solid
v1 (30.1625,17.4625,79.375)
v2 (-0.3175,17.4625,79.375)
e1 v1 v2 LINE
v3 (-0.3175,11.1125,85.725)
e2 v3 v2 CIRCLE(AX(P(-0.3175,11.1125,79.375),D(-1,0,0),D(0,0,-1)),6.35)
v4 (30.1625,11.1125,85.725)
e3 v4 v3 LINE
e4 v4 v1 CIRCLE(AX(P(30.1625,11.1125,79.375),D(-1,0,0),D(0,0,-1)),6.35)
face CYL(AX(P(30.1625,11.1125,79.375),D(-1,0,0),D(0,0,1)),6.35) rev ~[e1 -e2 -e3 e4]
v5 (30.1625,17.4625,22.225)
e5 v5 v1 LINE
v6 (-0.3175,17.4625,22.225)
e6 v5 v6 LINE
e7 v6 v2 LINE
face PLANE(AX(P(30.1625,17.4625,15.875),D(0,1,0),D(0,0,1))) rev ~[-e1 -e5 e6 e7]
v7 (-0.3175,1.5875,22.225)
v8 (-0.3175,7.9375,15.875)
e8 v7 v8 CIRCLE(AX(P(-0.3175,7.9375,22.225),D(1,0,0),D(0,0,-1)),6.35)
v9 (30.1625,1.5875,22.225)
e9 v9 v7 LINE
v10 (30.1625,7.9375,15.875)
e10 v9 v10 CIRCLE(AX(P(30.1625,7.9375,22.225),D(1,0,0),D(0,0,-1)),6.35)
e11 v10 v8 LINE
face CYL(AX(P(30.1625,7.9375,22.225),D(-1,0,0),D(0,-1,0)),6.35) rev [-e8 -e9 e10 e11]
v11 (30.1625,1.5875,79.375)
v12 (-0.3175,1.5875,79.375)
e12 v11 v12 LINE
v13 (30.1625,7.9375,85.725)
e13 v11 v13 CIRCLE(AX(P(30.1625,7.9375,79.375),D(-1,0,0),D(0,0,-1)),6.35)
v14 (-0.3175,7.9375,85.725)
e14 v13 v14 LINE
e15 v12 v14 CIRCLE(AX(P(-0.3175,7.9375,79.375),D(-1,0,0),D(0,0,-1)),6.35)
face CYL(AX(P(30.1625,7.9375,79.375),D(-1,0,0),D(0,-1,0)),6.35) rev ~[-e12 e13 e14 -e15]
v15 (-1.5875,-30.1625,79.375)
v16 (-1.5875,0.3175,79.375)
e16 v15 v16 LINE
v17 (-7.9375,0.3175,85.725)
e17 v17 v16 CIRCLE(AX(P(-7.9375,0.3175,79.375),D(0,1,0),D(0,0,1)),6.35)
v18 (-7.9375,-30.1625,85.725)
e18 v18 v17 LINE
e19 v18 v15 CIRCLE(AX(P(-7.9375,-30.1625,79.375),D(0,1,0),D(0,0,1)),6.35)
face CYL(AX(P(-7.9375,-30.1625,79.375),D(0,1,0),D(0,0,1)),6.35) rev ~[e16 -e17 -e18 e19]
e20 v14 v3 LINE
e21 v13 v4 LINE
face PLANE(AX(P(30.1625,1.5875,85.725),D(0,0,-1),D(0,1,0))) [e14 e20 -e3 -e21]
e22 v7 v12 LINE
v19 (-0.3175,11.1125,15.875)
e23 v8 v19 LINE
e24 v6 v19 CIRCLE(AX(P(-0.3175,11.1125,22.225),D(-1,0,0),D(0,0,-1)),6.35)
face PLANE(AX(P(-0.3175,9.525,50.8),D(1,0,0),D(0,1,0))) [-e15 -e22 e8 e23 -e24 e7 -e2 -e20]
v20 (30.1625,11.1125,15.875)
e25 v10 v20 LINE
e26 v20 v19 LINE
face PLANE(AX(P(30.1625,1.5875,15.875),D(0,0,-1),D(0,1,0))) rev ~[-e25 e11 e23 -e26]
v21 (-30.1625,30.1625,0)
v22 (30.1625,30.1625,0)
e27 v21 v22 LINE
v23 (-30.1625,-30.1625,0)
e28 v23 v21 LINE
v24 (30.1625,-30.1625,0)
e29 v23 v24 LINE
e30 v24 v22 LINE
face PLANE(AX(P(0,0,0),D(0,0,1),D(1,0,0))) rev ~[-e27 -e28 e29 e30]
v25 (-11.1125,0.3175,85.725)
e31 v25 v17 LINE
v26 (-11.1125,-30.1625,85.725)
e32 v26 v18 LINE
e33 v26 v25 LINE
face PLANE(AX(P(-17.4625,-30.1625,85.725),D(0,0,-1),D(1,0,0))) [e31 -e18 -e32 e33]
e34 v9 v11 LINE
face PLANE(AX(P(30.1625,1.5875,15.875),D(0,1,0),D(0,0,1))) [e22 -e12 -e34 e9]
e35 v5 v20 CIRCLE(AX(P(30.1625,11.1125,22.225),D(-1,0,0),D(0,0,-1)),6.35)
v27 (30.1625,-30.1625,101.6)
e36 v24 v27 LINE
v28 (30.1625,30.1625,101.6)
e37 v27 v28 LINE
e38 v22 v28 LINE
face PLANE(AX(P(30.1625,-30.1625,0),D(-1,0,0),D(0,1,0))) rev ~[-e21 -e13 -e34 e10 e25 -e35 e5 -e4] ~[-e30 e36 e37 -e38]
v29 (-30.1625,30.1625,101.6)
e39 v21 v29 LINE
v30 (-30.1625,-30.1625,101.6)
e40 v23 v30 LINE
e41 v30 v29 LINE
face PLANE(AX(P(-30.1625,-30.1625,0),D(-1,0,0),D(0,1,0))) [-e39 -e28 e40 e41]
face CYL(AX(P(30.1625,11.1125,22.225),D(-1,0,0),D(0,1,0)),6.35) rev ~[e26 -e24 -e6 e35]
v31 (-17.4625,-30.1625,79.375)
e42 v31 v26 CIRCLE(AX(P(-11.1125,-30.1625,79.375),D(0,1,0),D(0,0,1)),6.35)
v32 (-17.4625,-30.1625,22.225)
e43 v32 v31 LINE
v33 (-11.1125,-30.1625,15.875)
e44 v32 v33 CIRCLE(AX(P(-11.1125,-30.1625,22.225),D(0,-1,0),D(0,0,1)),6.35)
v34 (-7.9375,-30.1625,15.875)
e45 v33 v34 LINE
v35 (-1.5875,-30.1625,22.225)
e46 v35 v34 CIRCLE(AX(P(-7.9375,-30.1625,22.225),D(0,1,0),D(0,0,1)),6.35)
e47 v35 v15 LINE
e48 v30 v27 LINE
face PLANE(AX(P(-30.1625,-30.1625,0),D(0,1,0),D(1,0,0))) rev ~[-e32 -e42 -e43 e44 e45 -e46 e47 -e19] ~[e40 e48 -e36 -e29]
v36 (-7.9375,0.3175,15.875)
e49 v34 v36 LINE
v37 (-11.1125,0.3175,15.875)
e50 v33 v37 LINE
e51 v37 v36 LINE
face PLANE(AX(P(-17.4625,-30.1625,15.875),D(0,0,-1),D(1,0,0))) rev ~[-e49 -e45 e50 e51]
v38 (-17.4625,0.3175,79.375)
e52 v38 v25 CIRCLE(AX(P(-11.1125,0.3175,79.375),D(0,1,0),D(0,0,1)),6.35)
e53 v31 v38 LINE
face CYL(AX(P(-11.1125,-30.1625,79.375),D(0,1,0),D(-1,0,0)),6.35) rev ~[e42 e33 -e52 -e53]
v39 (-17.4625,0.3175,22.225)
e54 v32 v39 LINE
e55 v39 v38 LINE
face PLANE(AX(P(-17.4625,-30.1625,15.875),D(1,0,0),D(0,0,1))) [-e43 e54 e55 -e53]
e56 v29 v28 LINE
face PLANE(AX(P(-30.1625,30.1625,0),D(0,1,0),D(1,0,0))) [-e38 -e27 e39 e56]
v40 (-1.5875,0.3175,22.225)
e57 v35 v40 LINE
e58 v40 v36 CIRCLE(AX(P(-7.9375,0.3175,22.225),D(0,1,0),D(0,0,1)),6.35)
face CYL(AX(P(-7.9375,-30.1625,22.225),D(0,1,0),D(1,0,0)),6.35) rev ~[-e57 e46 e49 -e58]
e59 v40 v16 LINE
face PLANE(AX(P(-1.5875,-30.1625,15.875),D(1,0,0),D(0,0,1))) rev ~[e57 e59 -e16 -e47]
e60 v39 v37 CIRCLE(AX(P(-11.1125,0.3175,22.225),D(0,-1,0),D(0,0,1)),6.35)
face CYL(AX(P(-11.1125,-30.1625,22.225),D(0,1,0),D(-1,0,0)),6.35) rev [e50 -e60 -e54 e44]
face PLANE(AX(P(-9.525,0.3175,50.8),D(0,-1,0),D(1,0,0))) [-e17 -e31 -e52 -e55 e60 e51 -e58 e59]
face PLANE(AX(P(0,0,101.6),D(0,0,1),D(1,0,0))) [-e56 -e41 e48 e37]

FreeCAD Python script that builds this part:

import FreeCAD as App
import Part
import Sketcher
Q = App.Units.Quantity


def edges_at(feature, points):
    """Names of the edges that pass closest to the given points."""
    edges = feature.Shape.Edges
    near = lambda p: min(range(len(edges)), key=lambda i: edges[i].distToShape(Part.Vertex(*p))[0])
    return sorted({f"Edge{near(p) + 1}" for p in points})


def add_polygon(sketch, points):
    """Adds a closed chain of lines whose ends are joined by coincident constraints."""
    first, n = sketch.GeometryCount, len(points)
    for a, b in zip(points, points[1:] + points[:1]):
        sketch.addGeometry(Part.LineSegment(App.Vector(*a, 0), App.Vector(*b, 0)), False)
    for i in range(n):
        sketch.addConstraint(Sketcher.Constraint("Coincident", first + i, 2, first + (i + 1) % n, 1))

doc = App.newDocument("Part")
params = doc.addObject("Spreadsheet::Sheet", "Params")
for row, (alias, value) in enumerate([
    ("sketch1_width", "2.375 in"),
    ("pad1_length", "4 in"),
    ("sketch2_height", "2.75 in"),
    ("sketch2_width", "0.625 in"),
    ("pocket1_length", "1.2 in"),
    ("sketch3_height", "2.75 in"),
    ("sketch3_width", "0.625 in"),
    ("pocket2_length", "1.2 in"),
    ("fillet_radius", "0.25 in"),
], start=1):
    params.set(f"A{row}", alias)
    params.set(f"B{row}", "=" + value)
    params.setAlias(f"B{row}", alias)

body = doc.addObject("PartDesign::Body", "Body")

sketch1 = body.newObject("Sketcher::SketchObject", "Sketch")
sketch1.AttachmentSupport = (doc.getObject("XY_Plane"), [""])
sketch1.MapMode = "FlatFace"
add_polygon(sketch1, [(-30, 30), (-30, -30), (30, -30), (30, 30)])
sketch1.addConstraint([
    Sketcher.Constraint("Vertical", 0),
    Sketcher.Constraint("Horizontal", 1),
    Sketcher.Constraint("Vertical", 2),
    Sketcher.Constraint("Horizontal", 3),
    Sketcher.Constraint("Symmetric", 0, 2, 2, 2, -1, 1),
    Sketcher.Constraint("Equal", 3, 0),
    Sketcher.Constraint("DistanceX", 1, 1, 1, 2, Q("2.375 in")),
])
sketch1.setExpression("Constraints[10]", "Params.sketch1_width")
pad1 = body.newObject("PartDesign::Pad", "Pad")
pad1.Profile = sketch1
pad1.setExpression("Length", "Params.pad1_length")

sketch2 = body.newObject("Sketcher::SketchObject", "Sketch001")
sketch2.AttachmentSupport = (doc.getObject("XZ_Plane"), [""])
sketch2.MapMode = "FlatFace"
sketch2.AttachmentOffset = App.Placement(App.Vector(0, 0, 1.1875 * 25.4), App.Rotation())
add_polygon(sketch2, [(-17, 86), (-17, 16), (-2, 16), (-2, 86)])
sketch2.addConstraint([
    Sketcher.Constraint("Vertical", 0),
    Sketcher.Constraint("Horizontal", 1),
    Sketcher.Constraint("Vertical", 2),
    Sketcher.Constraint("Horizontal", 3),
    Sketcher.Constraint("DistanceY", 0, 2, 0, 1, Q("2.75 in")),
    Sketcher.Constraint("DistanceX", 1, 1, 1, 2, Q("0.625 in")),
    Sketcher.Constraint("DistanceX", 0, 2, -1, 1, Q("0.6875 in")),
    Sketcher.Constraint("DistanceY", -1, 1, 0, 2, Q("0.625 in")),
])
sketch2.setExpression("Constraints[8]", "Params.sketch2_height")
sketch2.setExpression("Constraints[9]", "Params.sketch2_width")
pocket1 = body.newObject("PartDesign::Pocket", "Pocket")
pocket1.Profile = sketch2
pocket1.setExpression("Length", "Params.pocket1_length")

sketch3 = body.newObject("Sketcher::SketchObject", "Sketch002")
sketch3.AttachmentSupport = (doc.getObject("YZ_Plane"), [""])
sketch3.MapMode = "FlatFace"
sketch3.AttachmentOffset = App.Placement(App.Vector(0, 0, 1.1875 * 25.4), App.Rotation())
add_polygon(sketch3, [(2, 86), (2, 16), (17, 16), (17, 86)])
sketch3.addConstraint([
    Sketcher.Constraint("Vertical", 0),
    Sketcher.Constraint("Horizontal", 1),
    Sketcher.Constraint("Vertical", 2),
    Sketcher.Constraint("Horizontal", 3),
    Sketcher.Constraint("DistanceY", 0, 2, 0, 1, Q("2.75 in")),
    Sketcher.Constraint("DistanceX", 1, 1, 1, 2, Q("0.625 in")),
    Sketcher.Constraint("DistanceX", -1, 1, 0, 2, Q("0.0625 in")),
    Sketcher.Constraint("DistanceY", -1, 1, 0, 2, Q("0.625 in")),
])
sketch3.setExpression("Constraints[8]", "Params.sketch3_height")
sketch3.setExpression("Constraints[9]", "Params.sketch3_width")
pocket2 = body.newObject("PartDesign::Pocket", "Pocket001")
pocket2.Profile = sketch3
pocket2.setExpression("Length", "Params.pocket2_length")
doc.recompute()

fillet = body.newObject("PartDesign::Fillet", "Fillet")
fillet.Base = (pocket2, edges_at(pocket2, [
    (-17.462, -14.922, 85.725),
    (-1.587, -14.922, 85.725),
    (-17.462, -14.922, 15.875),
    (-1.587, -14.922, 15.875),
    (14.922, 17.462, 85.725),
    (14.922, 1.587, 85.725),
    (14.922, 1.587, 15.875),
    (14.922, 17.462, 15.875),
]))
fillet.setExpression("Radius", "Params.fillet_radius")

doc.recompute()
